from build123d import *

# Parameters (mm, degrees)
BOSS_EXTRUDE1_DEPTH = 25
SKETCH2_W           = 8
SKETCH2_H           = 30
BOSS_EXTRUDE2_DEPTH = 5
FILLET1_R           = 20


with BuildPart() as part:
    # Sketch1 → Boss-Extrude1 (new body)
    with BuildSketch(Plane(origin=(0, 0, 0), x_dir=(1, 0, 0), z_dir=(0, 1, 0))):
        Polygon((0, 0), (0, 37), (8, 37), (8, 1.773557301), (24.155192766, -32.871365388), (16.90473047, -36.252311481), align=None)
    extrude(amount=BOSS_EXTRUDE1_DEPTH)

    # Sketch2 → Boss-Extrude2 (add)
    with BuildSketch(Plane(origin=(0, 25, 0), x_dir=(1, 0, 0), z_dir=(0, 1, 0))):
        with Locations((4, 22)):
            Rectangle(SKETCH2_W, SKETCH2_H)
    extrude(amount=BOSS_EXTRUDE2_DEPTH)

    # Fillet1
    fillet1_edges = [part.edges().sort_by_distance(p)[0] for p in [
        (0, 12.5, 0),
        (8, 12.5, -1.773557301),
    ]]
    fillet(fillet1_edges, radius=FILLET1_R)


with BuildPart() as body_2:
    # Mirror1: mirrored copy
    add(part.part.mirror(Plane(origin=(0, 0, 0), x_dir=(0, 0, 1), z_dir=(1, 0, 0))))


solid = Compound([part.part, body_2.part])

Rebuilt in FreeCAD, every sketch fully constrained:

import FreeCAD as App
import Part
import Sketcher

V = App.Vector
Q = App.Units.Quantity


def edges_at(feature, points):
    """Names of the edges that pass closest to the given points."""
    edges = feature.Shape.Edges
    near = lambda p: min(range(len(edges)), key=lambda i: edges[i].distToShape(Part.Vertex(*p))[0])
    return sorted({f"Edge{near(p) + 1}" for p in points})


def add_polygon(sketch, points):
    """Adds a closed chain of lines whose ends are joined by coincident constraints."""
    first, n = sketch.GeometryCount, len(points)
    for a, b in zip(points, points[1:] + points[:1]):
        sketch.addGeometry(Part.LineSegment(App.Vector(*a, 0), App.Vector(*b, 0)), False)
    for i in range(n):
        sketch.addConstraint(Sketcher.Constraint("Coincident", first + i, 2, first + (i + 1) % n, 1))

doc = App.newDocument("Part")
body = doc.addObject("PartDesign::Body", "Body")

# Sketch on XZ plane
sketch1 = doc.addObject("Sketcher::SketchObject", "Sketch")
body.addObject(sketch1)
sketch1.AttachmentSupport = (doc.XZ_Plane, [""])
sketch1.MapMode = "FlatFace"
add_polygon(sketch1, [(0, -37), (0, 0), (16.90473, 36.252311), (24.155193, 32.871365), (8, -1.773557), (8, -37)])  # lines 0-5
sketch1.addConstraint([
    Sketcher.Constraint("Vertical", 0),
    Sketcher.Constraint("Vertical", 4),
    Sketcher.Constraint("Horizontal", 5),
    Sketcher.Constraint("Coincident", 0, 2, -1, 1),
    Sketcher.Constraint("Perpendicular", 1, 2),
    Sketcher.Constraint("Perpendicular", 2, 3),
    Sketcher.Constraint("DistanceX", 5, 2, 5, 1, 8.0),
    Sketcher.Constraint("DistanceY", 0, 1, 0, 2, 37.0),
    Sketcher.Constraint("Angle", 1, Q("65 deg")),
    Sketcher.Constraint("Distance", 1, 40.0),
    Sketcher.Constraint("Distance", 2, 8.0),
])
pad1 = doc.addObject("PartDesign::Pad", "Pad")
body.addObject(pad1)
pad1.Profile = sketch1
pad1.Length = 25
pad1.Reversed = True

# Sketch on XZ plane
sketch2 = doc.addObject("Sketcher::SketchObject", "Sketch001")
body.addObject(sketch2)
sketch2.AttachmentSupport = (doc.XZ_Plane, [""])
sketch2.MapMode = "FlatFace"
sketch2.AttachmentOffset = App.Placement(V(0, 0, -25), App.Rotation())
add_polygon(sketch2, [(0, -37), (0, -7), (8, -7), (8, -37)])  # lines 0-3
sketch2.addConstraint([
    Sketcher.Constraint("Vertical", 0),
    Sketcher.Constraint("Horizontal", 1),
    Sketcher.Constraint("Vertical", 2),
    Sketcher.Constraint("Horizontal", 3),
    Sketcher.Constraint("PointOnObject", 0, 2, -2),
    Sketcher.Constraint("DistanceX", 1, 1, 1, 2, 8.0),
    Sketcher.Constraint("DistanceY", 0, 1, 0, 2, 30.0),
    Sketcher.Constraint("DistanceY", 0, 2, -1, 1, 7.0),
])
pad2 = doc.addObject("PartDesign::Pad", "Pad001")
body.addObject(pad2)
pad2.Profile = sketch2
pad2.Length = 5
pad2.Reversed = True
doc.recompute()

fillet = doc.addObject("PartDesign::Fillet", "Fillet")
body.addObject(fillet)
fillet.Base = (pad2, edges_at(pad2, [(0, 12.5, 0), (8, 12.5, -1.774)]))
fillet.Radius = 20
body2 = doc.addObject("PartDesign::Body", "Body001")
doc.recompute()

mirroring = doc.addObject("Part::Mirroring", "Mirroring")
mirroring.Source = body
mirroring.Base = V(0, 0, 0)
mirroring.Normal = V(1, 0, 0)
body2.BaseFeature = mirroring
doc.recompute()
mirroring.Visibility = False

doc.recompute()
